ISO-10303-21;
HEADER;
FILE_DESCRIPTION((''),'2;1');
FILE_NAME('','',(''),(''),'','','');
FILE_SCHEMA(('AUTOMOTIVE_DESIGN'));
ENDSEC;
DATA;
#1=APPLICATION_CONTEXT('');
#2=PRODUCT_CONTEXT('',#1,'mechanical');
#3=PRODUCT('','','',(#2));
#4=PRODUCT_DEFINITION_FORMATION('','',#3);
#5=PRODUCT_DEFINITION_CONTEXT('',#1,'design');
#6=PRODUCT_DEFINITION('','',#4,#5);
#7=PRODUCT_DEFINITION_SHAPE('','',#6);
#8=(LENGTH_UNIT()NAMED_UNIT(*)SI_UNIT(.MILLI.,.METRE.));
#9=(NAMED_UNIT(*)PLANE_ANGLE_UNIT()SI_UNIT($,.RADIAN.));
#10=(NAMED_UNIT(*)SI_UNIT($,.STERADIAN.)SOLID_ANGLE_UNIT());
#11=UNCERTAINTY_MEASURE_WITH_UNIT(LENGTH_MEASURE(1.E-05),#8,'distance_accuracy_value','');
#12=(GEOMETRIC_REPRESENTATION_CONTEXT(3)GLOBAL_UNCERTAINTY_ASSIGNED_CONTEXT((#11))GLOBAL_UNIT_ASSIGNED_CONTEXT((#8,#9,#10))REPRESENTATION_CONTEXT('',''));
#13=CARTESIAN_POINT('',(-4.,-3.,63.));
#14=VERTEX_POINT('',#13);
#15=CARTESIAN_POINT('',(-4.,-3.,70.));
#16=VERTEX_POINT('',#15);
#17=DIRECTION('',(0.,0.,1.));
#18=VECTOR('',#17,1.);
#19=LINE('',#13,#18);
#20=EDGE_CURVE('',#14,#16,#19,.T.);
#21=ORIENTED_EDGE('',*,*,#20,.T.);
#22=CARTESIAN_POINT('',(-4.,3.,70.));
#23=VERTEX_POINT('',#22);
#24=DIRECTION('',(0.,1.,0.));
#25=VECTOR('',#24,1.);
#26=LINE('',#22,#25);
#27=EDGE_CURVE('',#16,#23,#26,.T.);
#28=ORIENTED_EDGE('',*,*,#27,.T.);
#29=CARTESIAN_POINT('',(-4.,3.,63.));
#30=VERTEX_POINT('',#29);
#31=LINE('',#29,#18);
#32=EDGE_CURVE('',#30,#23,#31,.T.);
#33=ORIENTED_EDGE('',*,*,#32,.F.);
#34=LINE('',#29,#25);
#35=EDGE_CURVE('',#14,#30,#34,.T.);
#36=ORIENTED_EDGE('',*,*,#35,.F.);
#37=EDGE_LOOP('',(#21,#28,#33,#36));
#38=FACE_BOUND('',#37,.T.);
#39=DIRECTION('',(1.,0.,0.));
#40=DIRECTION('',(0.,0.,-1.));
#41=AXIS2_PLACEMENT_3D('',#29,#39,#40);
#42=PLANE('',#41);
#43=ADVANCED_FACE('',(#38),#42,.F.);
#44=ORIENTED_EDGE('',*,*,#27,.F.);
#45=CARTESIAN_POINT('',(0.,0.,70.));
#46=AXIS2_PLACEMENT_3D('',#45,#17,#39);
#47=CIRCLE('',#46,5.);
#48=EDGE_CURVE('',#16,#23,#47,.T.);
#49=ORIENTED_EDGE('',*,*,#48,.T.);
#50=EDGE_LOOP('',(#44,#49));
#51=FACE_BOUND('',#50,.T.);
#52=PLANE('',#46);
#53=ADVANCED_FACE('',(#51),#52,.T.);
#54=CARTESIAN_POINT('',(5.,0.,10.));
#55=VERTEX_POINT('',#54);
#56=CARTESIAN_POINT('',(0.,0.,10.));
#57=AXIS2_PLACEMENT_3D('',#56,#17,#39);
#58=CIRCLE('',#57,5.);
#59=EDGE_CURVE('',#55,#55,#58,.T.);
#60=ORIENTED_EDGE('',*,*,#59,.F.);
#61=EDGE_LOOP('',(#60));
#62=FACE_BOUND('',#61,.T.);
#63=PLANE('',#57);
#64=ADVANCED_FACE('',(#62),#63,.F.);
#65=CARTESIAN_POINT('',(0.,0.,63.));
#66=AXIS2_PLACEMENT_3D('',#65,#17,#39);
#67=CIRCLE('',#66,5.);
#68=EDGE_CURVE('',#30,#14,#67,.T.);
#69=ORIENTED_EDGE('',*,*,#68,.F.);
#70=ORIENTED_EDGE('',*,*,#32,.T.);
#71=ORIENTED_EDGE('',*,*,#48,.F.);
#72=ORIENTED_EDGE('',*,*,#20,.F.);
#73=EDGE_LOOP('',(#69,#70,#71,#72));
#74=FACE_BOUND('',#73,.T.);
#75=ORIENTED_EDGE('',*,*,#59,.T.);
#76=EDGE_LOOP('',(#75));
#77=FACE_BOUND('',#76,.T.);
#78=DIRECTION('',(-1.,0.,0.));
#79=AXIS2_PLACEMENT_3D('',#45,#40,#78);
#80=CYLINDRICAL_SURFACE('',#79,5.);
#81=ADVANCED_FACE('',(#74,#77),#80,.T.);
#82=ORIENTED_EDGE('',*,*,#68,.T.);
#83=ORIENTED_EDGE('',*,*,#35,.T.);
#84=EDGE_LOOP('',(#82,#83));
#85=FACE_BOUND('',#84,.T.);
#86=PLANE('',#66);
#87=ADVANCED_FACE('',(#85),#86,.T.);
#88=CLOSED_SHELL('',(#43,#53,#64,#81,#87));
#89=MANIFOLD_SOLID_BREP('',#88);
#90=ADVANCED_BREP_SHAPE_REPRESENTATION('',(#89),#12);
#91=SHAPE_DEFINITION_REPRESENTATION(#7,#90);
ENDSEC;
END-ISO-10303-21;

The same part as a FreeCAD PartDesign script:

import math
import FreeCAD as App
import Part
import Sketcher

V = App.Vector

doc = App.newDocument("Part")
body = doc.addObject("PartDesign::Body", "Body")

# Sketch on XY plane
sketch1 = doc.addObject("Sketcher::SketchObject", "Sketch")
body.addObject(sketch1)
sketch1.AttachmentSupport = (doc.XY_Plane, [""])
sketch1.MapMode = "FlatFace"
sketch1.AttachmentOffset = App.Placement(V(0, 0, 10), App.Rotation())
sketch1.addGeometry(Part.Circle(V(0, 0, 0), V(0, 0, 1), 5), False)
sketch1.addConstraint([
    Sketcher.Constraint("Coincident", 0, 3, -1, 1),
    Sketcher.Constraint("Diameter", 0, 10.0),
])
pad1 = doc.addObject("PartDesign::Pad", "Pad")
body.addObject(pad1)
pad1.Profile = sketch1
pad1.Length = 60

# Sketch on XY plane
sketch2 = doc.addObject("Sketcher::SketchObject", "Sketch001")
body.addObject(sketch2)
sketch2.AttachmentSupport = (doc.XY_Plane, [""])
sketch2.MapMode = "FlatFace"
sketch2.AttachmentOffset = App.Placement(V(0, 0, 70), App.Rotation())
sketch2.addGeometry([
    Part.LineSegment(V(-4, -3, 0), V(-4, 3, 0)),
    Part.ArcOfCircle(Part.Circle(V(0, 0, 0), V(0, 0, 1), 5), math.radians(143.130102), math.radians(216.869898)),
], False)
sketch2.addConstraint([
    Sketcher.Constraint("Coincident", 0, 1, 1, 2),
    Sketcher.Constraint("Coincident", 1, 1, 0, 2),
    Sketcher.Constraint("Vertical", 0),
    Sketcher.Constraint("Coincident", 1, 3, -1, 1),
    Sketcher.Constraint("Radius", 1, 5.0),
    Sketcher.Constraint("DistanceY", 0, 1, 0, 2, 6.0),
])
pocket1 = doc.addObject("PartDesign::Pocket", "Pocket")
body.addObject(pocket1)
pocket1.Profile = sketch2
pocket1.Length = 7

doc.recompute()
